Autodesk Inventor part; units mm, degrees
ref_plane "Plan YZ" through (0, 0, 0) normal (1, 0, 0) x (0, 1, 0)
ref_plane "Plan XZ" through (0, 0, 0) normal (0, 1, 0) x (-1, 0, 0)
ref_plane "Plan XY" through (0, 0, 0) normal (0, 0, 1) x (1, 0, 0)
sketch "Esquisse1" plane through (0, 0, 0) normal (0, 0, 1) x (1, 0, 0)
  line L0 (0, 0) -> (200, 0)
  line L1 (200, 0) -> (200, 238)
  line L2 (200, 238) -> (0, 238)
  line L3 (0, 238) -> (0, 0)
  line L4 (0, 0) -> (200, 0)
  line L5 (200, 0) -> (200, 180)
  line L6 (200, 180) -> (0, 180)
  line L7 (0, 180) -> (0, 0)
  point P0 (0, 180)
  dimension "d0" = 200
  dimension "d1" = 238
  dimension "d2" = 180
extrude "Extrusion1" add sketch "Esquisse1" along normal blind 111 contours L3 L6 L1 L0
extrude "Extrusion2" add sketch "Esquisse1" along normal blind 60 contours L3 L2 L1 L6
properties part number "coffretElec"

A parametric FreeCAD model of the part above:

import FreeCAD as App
import Part
import Sketcher
Q = App.Units.Quantity


def add_polygon(sketch, points):
    """Adds a closed chain of lines whose ends are joined by coincident constraints."""
    first, n = sketch.GeometryCount, len(points)
    for a, b in zip(points, points[1:] + points[:1]):
        sketch.addGeometry(Part.LineSegment(App.Vector(*a, 0), App.Vector(*b, 0)), False)
    for i in range(n):
        sketch.addConstraint(Sketcher.Constraint("Coincident", first + i, 2, first + (i + 1) % n, 1))

doc = App.newDocument("Part")
body = doc.addObject("PartDesign::Body", "Body")

# Sketch on XY plane
sketch1 = body.newObject("Sketcher::SketchObject", "Sketch")
sketch1.AttachmentSupport = (doc.getObject("XY_Plane"), [""])
sketch1.MapMode = "FlatFace"
add_polygon(sketch1, [(0, 180), (0, 0), (200, 0), (200, 180)])  # lines 0-3
sketch1.addConstraint([
    Sketcher.Constraint("Vertical", 0),
    Sketcher.Constraint("Horizontal", 1),
    Sketcher.Constraint("Vertical", 2),
    Sketcher.Constraint("Horizontal", 3),
    Sketcher.Constraint("Coincident", 0, 2, -1, 1),
    Sketcher.Constraint("DistanceX", 1, 1, 1, 2, Q("200 mm")),
    Sketcher.Constraint("DistanceY", 0, 2, 0, 1, Q("180 mm")),
])
pad1 = body.newObject("PartDesign::Pad", "Pad")
pad1.Profile = sketch1
pad1.Length = 111

# Sketch on XY plane
sketch2 = body.newObject("Sketcher::SketchObject", "Sketch001")
sketch2.AttachmentSupport = (doc.getObject("XY_Plane"), [""])
sketch2.MapMode = "FlatFace"
add_polygon(sketch2, [(0, 238), (0, 180), (200, 180), (200, 238)])  # lines 0-3
sketch2.addConstraint([
    Sketcher.Constraint("Vertical", 0),
    Sketcher.Constraint("Horizontal", 1),
    Sketcher.Constraint("Vertical", 2),
    Sketcher.Constraint("Horizontal", 3),
    Sketcher.Constraint("PointOnObject", 0, 2, -2),
    Sketcher.Constraint("DistanceX", 1, 1, 1, 2, Q("200 mm")),
    Sketcher.Constraint("DistanceY", -1, 1, 0, 2, Q("180 mm")),
    Sketcher.Constraint("DistanceY", -1, 1, 2, 2, Q("238 mm")),
])
pad2 = body.newObject("PartDesign::Pad", "Pad001")
pad2.Profile = sketch2
pad2.Length = 60

doc.recompute()
